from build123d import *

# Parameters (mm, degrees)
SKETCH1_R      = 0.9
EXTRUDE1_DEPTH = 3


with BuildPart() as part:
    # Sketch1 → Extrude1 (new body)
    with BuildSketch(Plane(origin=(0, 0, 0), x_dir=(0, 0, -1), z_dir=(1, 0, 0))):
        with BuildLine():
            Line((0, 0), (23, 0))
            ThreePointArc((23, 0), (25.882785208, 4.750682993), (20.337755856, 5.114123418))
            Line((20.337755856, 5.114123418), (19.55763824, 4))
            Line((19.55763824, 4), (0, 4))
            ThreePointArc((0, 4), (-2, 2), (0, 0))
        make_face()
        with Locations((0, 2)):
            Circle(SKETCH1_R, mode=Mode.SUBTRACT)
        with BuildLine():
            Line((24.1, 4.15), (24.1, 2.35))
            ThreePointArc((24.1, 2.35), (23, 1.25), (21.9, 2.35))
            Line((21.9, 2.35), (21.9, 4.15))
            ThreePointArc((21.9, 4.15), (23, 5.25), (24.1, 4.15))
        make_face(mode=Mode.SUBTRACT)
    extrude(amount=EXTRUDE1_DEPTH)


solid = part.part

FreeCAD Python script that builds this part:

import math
import FreeCAD as App
import Part
import Sketcher

V = App.Vector
Q = App.Units.Quantity

doc = App.newDocument("Part")
body = doc.addObject("PartDesign::Body", "Body")

# Sketch on YZ plane
sketch1 = doc.addObject("Sketcher::SketchObject", "Sketch")
body.addObject(sketch1)
sketch1.AttachmentSupport = (doc.YZ_Plane, [""])
sketch1.MapMode = "FlatFace"
sketch1.addGeometry([
    Part.LineSegment(V(0, 0, 0), V(0, -23, 0)),  # 0
    Part.ArcOfCircle(Part.Circle(V(3.25, -23, 0), V(0, 0, 1), 3.25), math.radians(180), math.radians(415)),  # 1
    Part.LineSegment(V(5.114123, -20.337756, 0), V(4, -19.557638, 0)),  # 2
    Part.LineSegment(V(4, -19.557638, 0), V(4, 0, 0)),  # 3
    Part.ArcOfCircle(Part.Circle(V(2, 0, 0), V(0, 0, 1), 2), math.radians(0), math.radians(180)),  # 4
    Part.Circle(V(2, 0, 0), V(0, 0, 1), 0.9),  # 5
    Part.ArcOfCircle(Part.Circle(V(4.15, -23, 0), V(0, 0, 1), 1.1), math.radians(-90), math.radians(90)),  # 6
    Part.LineSegment(V(4.15, -24.1, 0), V(2.35, -24.1, 0)),  # 7
    Part.ArcOfCircle(Part.Circle(V(2.35, -23, 0), V(0, 0, 1), 1.1), math.radians(90), math.radians(270)),  # 8
    Part.LineSegment(V(2.35, -21.9, 0), V(4.15, -21.9, 0)),  # 9
], False)
sketch1.addConstraint([
    Sketcher.Constraint("Tangent", 0, 2, 1, 1),
    Sketcher.Constraint("Tangent", 1, 2, 2, 1),
    Sketcher.Constraint("Coincident", 2, 2, 3, 1),
    Sketcher.Constraint("Tangent", 3, 2, 4, 1),
    Sketcher.Constraint("Tangent", 4, 2, 0, 1),
    Sketcher.Constraint("Tangent", 6, 1, 7, 1),
    Sketcher.Constraint("Tangent", 7, 2, 8, 2),
    Sketcher.Constraint("Tangent", 8, 1, 9, 1),
    Sketcher.Constraint("Tangent", 9, 2, 6, 2),
    Sketcher.Constraint("Vertical", 0),
    Sketcher.Constraint("Vertical", 3),
    Sketcher.Constraint("Horizontal", 7),
    Sketcher.Constraint("Horizontal", 9),
    Sketcher.Constraint("Coincident", 4, 2, -1, 1),
    Sketcher.Constraint("Coincident", 5, 3, 4, 3),
    Sketcher.Constraint("Horizontal", 1, 3, 6, 3),
    Sketcher.Constraint("Radius", 4, 2.0),
    Sketcher.Constraint("Diameter", 5, 1.8),
    Sketcher.Constraint("Radius", 6, 1.1),
    Sketcher.Constraint("DistanceY", 0, 2, 0, 1, 23.0),
    Sketcher.Constraint("Angle", 2, Q("145 deg")),
    Sketcher.Constraint("Radius", 1, 3.25),
    Sketcher.Constraint("DistanceX", 7, 2, 7, 1, 1.8),
    Sketcher.Constraint("DistanceX", 1, 3, 6, 3, 0.9),
])
pad1 = doc.addObject("PartDesign::Pad", "Pad")
body.addObject(pad1)
pad1.Profile = sketch1
pad1.Length = 3

doc.recompute()
